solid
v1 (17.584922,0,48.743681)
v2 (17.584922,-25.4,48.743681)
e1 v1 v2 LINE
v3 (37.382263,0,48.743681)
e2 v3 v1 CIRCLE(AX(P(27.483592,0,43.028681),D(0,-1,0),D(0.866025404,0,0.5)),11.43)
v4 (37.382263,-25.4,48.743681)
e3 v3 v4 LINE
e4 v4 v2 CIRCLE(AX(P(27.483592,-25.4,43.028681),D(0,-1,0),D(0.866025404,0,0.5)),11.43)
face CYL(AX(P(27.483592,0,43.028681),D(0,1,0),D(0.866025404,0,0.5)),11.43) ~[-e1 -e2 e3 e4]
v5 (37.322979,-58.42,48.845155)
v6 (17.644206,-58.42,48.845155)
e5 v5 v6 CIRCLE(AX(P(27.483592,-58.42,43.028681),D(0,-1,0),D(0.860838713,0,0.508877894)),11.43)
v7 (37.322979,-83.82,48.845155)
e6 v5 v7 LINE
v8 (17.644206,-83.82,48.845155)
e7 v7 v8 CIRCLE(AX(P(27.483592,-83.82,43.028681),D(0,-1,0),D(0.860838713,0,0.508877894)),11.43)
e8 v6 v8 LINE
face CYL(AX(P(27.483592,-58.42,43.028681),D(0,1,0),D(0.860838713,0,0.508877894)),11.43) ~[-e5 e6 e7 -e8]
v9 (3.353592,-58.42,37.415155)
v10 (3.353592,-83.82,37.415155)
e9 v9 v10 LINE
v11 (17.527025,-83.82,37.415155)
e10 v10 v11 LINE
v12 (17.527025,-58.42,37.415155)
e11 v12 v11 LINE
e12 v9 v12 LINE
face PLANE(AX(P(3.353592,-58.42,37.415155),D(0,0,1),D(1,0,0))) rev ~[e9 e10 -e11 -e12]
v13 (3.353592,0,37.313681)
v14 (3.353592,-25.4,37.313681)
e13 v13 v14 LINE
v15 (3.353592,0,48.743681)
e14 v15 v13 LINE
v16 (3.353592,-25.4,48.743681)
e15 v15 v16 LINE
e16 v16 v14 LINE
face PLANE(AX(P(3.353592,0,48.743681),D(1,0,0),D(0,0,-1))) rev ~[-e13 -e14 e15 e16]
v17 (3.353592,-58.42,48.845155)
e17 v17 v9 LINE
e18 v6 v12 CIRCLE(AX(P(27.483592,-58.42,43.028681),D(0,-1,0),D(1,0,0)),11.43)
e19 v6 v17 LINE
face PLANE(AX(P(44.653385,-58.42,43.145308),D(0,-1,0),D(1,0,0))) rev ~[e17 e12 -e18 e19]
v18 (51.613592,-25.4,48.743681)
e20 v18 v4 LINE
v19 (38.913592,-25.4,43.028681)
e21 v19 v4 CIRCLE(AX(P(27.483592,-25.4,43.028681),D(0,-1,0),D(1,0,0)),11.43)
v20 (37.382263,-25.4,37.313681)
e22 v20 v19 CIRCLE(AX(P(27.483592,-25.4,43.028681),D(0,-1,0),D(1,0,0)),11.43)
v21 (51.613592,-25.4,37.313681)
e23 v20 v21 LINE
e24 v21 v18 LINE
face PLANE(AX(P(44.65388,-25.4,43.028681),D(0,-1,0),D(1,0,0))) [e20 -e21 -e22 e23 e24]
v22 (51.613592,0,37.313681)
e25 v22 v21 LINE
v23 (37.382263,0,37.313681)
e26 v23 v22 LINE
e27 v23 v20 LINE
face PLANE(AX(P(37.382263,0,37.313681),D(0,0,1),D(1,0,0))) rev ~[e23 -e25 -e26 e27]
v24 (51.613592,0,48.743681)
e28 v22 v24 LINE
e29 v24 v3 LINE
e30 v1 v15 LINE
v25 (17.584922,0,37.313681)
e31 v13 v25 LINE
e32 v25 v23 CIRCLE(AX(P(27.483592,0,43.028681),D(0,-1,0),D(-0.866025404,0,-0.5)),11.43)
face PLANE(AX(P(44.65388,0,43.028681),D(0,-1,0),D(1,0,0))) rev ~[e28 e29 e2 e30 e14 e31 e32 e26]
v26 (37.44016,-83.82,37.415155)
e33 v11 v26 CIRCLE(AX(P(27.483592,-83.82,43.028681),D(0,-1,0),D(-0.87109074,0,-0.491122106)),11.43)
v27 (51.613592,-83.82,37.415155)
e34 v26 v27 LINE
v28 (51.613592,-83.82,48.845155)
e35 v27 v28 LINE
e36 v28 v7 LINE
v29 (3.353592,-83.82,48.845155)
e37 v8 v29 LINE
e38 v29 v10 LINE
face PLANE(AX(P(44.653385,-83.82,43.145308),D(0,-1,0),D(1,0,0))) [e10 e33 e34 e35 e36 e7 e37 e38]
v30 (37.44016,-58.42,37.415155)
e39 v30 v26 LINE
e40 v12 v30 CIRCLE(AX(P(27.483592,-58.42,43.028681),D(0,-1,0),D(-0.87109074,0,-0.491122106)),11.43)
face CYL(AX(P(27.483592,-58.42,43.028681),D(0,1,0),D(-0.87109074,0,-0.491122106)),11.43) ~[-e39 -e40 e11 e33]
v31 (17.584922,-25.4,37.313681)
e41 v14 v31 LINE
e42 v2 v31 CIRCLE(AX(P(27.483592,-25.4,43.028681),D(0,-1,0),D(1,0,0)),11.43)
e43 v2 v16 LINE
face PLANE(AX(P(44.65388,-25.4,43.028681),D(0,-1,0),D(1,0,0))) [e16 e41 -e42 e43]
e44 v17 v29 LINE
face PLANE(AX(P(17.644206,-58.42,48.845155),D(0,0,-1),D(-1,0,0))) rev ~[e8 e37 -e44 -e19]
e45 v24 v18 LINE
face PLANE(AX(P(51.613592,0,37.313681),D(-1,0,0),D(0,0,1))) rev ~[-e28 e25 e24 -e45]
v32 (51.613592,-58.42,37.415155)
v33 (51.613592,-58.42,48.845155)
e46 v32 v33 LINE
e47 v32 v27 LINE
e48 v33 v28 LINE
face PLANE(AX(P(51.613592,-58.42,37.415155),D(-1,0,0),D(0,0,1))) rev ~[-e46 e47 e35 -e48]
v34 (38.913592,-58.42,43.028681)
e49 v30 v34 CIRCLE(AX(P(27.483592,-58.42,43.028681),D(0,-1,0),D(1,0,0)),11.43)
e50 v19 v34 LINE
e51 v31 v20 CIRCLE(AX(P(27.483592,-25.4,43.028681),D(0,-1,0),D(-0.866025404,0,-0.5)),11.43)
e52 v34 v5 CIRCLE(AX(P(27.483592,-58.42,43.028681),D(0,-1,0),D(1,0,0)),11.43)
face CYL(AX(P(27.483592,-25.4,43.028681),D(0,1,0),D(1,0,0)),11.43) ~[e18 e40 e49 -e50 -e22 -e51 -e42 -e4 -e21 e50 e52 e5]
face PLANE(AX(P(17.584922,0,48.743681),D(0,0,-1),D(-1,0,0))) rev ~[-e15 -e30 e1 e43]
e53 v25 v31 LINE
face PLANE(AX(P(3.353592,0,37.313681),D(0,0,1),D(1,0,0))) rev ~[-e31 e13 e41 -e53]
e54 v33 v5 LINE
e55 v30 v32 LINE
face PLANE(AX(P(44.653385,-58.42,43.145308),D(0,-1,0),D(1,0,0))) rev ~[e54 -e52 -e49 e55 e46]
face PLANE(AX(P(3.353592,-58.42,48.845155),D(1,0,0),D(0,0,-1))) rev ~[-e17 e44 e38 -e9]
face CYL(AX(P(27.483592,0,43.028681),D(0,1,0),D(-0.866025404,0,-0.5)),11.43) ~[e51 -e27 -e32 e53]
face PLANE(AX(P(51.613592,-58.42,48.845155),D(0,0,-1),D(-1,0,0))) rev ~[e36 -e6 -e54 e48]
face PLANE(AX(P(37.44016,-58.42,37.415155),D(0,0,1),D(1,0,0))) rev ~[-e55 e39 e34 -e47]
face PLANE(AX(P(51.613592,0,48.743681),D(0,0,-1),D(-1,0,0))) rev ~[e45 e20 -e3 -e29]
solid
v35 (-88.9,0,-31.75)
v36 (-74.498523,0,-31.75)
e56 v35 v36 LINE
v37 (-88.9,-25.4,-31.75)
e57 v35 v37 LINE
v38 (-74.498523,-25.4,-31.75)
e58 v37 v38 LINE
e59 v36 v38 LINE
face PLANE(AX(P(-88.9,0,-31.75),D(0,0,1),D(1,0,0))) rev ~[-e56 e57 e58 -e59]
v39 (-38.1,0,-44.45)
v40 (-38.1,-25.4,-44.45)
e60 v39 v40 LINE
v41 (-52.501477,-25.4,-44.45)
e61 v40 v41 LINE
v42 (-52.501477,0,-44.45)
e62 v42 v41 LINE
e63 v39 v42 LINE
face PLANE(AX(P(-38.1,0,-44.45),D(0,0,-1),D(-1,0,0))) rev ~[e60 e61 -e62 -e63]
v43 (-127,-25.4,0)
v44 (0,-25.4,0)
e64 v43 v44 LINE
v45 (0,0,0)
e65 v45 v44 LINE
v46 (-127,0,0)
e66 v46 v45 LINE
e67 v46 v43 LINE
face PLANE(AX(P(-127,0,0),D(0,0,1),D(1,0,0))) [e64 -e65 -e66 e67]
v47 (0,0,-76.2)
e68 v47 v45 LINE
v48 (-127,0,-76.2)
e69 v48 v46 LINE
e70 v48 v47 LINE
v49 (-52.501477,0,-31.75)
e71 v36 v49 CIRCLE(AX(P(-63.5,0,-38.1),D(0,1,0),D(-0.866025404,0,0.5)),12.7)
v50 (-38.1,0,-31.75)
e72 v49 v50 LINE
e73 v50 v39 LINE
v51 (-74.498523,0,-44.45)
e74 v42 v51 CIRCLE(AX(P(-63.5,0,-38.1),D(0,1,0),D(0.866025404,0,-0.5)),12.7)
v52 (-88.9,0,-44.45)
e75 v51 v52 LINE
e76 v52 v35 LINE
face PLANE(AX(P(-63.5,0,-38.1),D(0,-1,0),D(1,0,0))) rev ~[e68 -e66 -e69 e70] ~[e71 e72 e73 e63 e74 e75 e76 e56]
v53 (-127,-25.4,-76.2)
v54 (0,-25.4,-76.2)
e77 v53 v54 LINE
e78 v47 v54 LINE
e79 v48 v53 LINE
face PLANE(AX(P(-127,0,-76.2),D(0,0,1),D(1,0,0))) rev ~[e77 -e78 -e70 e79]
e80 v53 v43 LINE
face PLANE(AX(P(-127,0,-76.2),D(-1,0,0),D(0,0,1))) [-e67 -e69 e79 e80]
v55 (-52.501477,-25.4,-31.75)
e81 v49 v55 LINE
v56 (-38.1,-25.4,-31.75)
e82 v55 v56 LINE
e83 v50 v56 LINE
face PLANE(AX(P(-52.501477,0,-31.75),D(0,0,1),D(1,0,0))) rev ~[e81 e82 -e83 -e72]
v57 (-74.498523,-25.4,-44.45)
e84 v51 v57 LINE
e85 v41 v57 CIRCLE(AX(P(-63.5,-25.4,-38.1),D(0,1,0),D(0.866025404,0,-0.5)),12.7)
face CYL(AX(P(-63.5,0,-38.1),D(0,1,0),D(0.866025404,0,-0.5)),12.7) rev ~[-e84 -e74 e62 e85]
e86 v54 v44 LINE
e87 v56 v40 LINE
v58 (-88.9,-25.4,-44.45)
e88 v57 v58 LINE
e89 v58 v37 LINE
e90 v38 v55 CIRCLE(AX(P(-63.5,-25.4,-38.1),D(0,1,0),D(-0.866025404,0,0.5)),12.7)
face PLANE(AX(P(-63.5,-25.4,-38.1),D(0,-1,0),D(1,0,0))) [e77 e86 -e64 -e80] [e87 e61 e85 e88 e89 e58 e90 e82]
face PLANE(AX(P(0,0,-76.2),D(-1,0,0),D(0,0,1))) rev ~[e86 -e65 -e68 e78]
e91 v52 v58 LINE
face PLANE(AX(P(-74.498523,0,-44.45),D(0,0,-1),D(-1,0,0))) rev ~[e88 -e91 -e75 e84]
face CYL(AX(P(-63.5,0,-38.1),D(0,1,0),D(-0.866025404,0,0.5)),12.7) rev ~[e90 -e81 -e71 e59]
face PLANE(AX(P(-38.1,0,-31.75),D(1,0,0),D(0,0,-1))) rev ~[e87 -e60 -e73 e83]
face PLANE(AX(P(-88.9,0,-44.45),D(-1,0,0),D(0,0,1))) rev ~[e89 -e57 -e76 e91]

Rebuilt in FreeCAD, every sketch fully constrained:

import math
import FreeCAD as App
import Part
import Sketcher

V = App.Vector
Q = App.Units.Quantity

doc = App.newDocument("Part")
body = doc.addObject("PartDesign::Body", "Body")

# Sketch on XZ plane
sketch1 = doc.addObject("Sketcher::SketchObject", "Sketch")
body.addObject(sketch1)
sketch1.AttachmentSupport = (doc.XZ_Plane, [""])
sketch1.MapMode = "FlatFace"
sketch1.addGeometry(Part.LineSegment(V(-127, 0, 0), V(-127, -76, 0)), False)
sketch1.addGeometry(Part.LineSegment(V(-127, -76, 0), V(0, -76, 0)), False)
sketch1.addGeometry(Part.LineSegment(V(0, -76, 0), V(0, 0, 0)), False)
sketch1.addGeometry(Part.LineSegment(V(0, 0, 0), V(-127, 0, 0)), False)
sketch1.addGeometry(Part.LineSegment(V(-89, -32, 0), V(-74, -32, 0)), False)
sketch1.addGeometry(Part.ArcOfCircle(Part.Circle(V(-64, -38, 0), V(0, 0, 1), 13), math.radians(30), math.radians(150)), False)
sketch1.addGeometry(Part.LineSegment(V(-53, -32, 0), V(-38, -32, 0)), False)
sketch1.addGeometry(Part.LineSegment(V(-38, -32, 0), V(-38, -44, 0)), False)
sketch1.addGeometry(Part.LineSegment(V(-38, -44, 0), V(-53, -44, 0)), False)
sketch1.addGeometry(Part.ArcOfCircle(Part.Circle(V(-64, -38, 0), V(0, 0, 1), 13), math.radians(-150), math.radians(-30)), False)
sketch1.addGeometry(Part.LineSegment(V(-74, -44, 0), V(-89, -44, 0)), False)
sketch1.addGeometry(Part.LineSegment(V(-89, -44, 0), V(-89, -32, 0)), False)
sketch1.addConstraint(Sketcher.Constraint("Coincident", 0, 2, 1, 1))
sketch1.addConstraint(Sketcher.Constraint("Coincident", 1, 2, 2, 1))
sketch1.addConstraint(Sketcher.Constraint("Coincident", 2, 2, 3, 1))
sketch1.addConstraint(Sketcher.Constraint("Coincident", 3, 2, 0, 1))
sketch1.addConstraint(Sketcher.Constraint("Coincident", 4, 2, 5, 2))
sketch1.addConstraint(Sketcher.Constraint("Coincident", 5, 1, 6, 1))
sketch1.addConstraint(Sketcher.Constraint("Coincident", 6, 2, 7, 1))
sketch1.addConstraint(Sketcher.Constraint("Coincident", 7, 2, 8, 1))
sketch1.addConstraint(Sketcher.Constraint("Coincident", 8, 2, 9, 2))
sketch1.addConstraint(Sketcher.Constraint("Coincident", 9, 1, 10, 1))
sketch1.addConstraint(Sketcher.Constraint("Coincident", 10, 2, 11, 1))
sketch1.addConstraint(Sketcher.Constraint("Coincident", 11, 2, 4, 1))
sketch1.addConstraint(Sketcher.Constraint("Vertical", 0))
sketch1.addConstraint(Sketcher.Constraint("Horizontal", 1))
sketch1.addConstraint(Sketcher.Constraint("Vertical", 2))
sketch1.addConstraint(Sketcher.Constraint("Horizontal", 3))
sketch1.addConstraint(Sketcher.Constraint("Horizontal", 4))
sketch1.addConstraint(Sketcher.Constraint("Horizontal", 6))
sketch1.addConstraint(Sketcher.Constraint("Vertical", 7))
sketch1.addConstraint(Sketcher.Constraint("Horizontal", 8))
sketch1.addConstraint(Sketcher.Constraint("Horizontal", 10))
sketch1.addConstraint(Sketcher.Constraint("Vertical", 11))
sketch1.addConstraint(Sketcher.Constraint("Coincident", 2, 2, -1, 1))
sketch1.addConstraint(Sketcher.Constraint("Coincident", 9, 3, 5, 3))
sketch1.addConstraint(Sketcher.Constraint("Equal", 5, 9))
sketch1.addConstraint(Sketcher.Constraint("Horizontal", 4, 2, 5, 1))
sketch1.addConstraint(Sketcher.Constraint("Horizontal", 8, 2, 9, 1))
sketch1.addConstraint(Sketcher.Constraint("Vertical", 5, 1, 8, 2))
sketch1.addConstraint(Sketcher.Constraint("Equal", 4, 6))
sketch1.addConstraint(Sketcher.Constraint("Radius", 5, Q("0.5 in")))
sketch1.addConstraint(Sketcher.Constraint("DistanceX", 1, 1, 1, 2, Q("5 in")))
sketch1.addConstraint(Sketcher.Constraint("DistanceY", 0, 2, 0, 1, Q("3 in")))
sketch1.addConstraint(Sketcher.Constraint("DistanceY", 7, 2, 7, 1, Q("0.5 in")))
sketch1.addConstraint(Sketcher.Constraint("DistanceX", 5, 3, 6, 2, Q("1 in")))
sketch1.addConstraint(Sketcher.Constraint("DistanceX", 5, 3, -1, 1, Q("2.5 in")))
sketch1.addConstraint(Sketcher.Constraint("DistanceY", 5, 3, -1, 1, Q("1.5 in")))
pad1 = doc.addObject("PartDesign::Pad", "Pad")
body.addObject(pad1)
pad1.Profile = sketch1
pad1.Length = Q("1 in")

# Sketch on XZ plane
sketch2 = doc.addObject("Sketcher::SketchObject", "Sketch001")
body.addObject(sketch2)
sketch2.AttachmentSupport = (doc.XZ_Plane, [""])
sketch2.MapMode = "FlatFace"
sketch2.addGeometry(Part.LineSegment(V(-127, 0, 0), V(-127, -76, 0)), False)
sketch2.addGeometry(Part.LineSegment(V(-127, -76, 0), V(0, -76, 0)), False)
sketch2.addGeometry(Part.LineSegment(V(0, -76, 0), V(0, 0, 0)), False)
sketch2.addGeometry(Part.LineSegment(V(0, 0, 0), V(-127, 0, 0)), False)
sketch2.addGeometry(Part.LineSegment(V(-89, -32, 0), V(-74, -32, 0)), False)
sketch2.addGeometry(Part.ArcOfCircle(Part.Circle(V(-64, -38, 0), V(0, 0, 1), 13), math.radians(30), math.radians(150)), False)
sketch2.addGeometry(Part.LineSegment(V(-53, -32, 0), V(-38, -32, 0)), False)
sketch2.addGeometry(Part.LineSegment(V(-38, -32, 0), V(-38, -44, 0)), False)
sketch2.addGeometry(Part.LineSegment(V(-38, -44, 0), V(-53, -44, 0)), False)
sketch2.addGeometry(Part.ArcOfCircle(Part.Circle(V(-64, -38, 0), V(0, 0, 1), 13), math.radians(-150), math.radians(-30)), False)
sketch2.addGeometry(Part.LineSegment(V(-74, -44, 0), V(-89, -44, 0)), False)
sketch2.addGeometry(Part.LineSegment(V(-89, -44, 0), V(-89, -32, 0)), False)
sketch2.addConstraint(Sketcher.Constraint("Coincident", 0, 2, 1, 1))
sketch2.addConstraint(Sketcher.Constraint("Coincident", 1, 2, 2, 1))
sketch2.addConstraint(Sketcher.Constraint("Coincident", 2, 2, 3, 1))
sketch2.addConstraint(Sketcher.Constraint("Coincident", 3, 2, 0, 1))
sketch2.addConstraint(Sketcher.Constraint("Coincident", 4, 2, 5, 2))
sketch2.addConstraint(Sketcher.Constraint("Coincident", 5, 1, 6, 1))
sketch2.addConstraint(Sketcher.Constraint("Coincident", 6, 2, 7, 1))
sketch2.addConstraint(Sketcher.Constraint("Coincident", 7, 2, 8, 1))
sketch2.addConstraint(Sketcher.Constraint("Coincident", 8, 2, 9, 2))
sketch2.addConstraint(Sketcher.Constraint("Coincident", 9, 1, 10, 1))
sketch2.addConstraint(Sketcher.Constraint("Coincident", 10, 2, 11, 1))
sketch2.addConstraint(Sketcher.Constraint("Coincident", 11, 2, 4, 1))
sketch2.addConstraint(Sketcher.Constraint("Vertical", 0))
sketch2.addConstraint(Sketcher.Constraint("Horizontal", 1))
sketch2.addConstraint(Sketcher.Constraint("Vertical", 2))
sketch2.addConstraint(Sketcher.Constraint("Horizontal", 3))
sketch2.addConstraint(Sketcher.Constraint("Horizontal", 4))
sketch2.addConstraint(Sketcher.Constraint("Horizontal", 6))
sketch2.addConstraint(Sketcher.Constraint("Vertical", 7))
sketch2.addConstraint(Sketcher.Constraint("Horizontal", 8))
sketch2.addConstraint(Sketcher.Constraint("Horizontal", 10))
sketch2.addConstraint(Sketcher.Constraint("Vertical", 11))
sketch2.addConstraint(Sketcher.Constraint("Coincident", 2, 2, -1, 1))
sketch2.addConstraint(Sketcher.Constraint("Coincident", 9, 3, 5, 3))
sketch2.addConstraint(Sketcher.Constraint("Equal", 5, 9))
sketch2.addConstraint(Sketcher.Constraint("Horizontal", 4, 2, 5, 1))
sketch2.addConstraint(Sketcher.Constraint("Horizontal", 8, 2, 9, 1))
sketch2.addConstraint(Sketcher.Constraint("Vertical", 5, 1, 8, 2))
sketch2.addConstraint(Sketcher.Constraint("Equal", 4, 6))
sketch2.addConstraint(Sketcher.Constraint("Radius", 5, Q("0.5 in")))
sketch2.addConstraint(Sketcher.Constraint("DistanceX", 1, 1, 1, 2, Q("5 in")))
sketch2.addConstraint(Sketcher.Constraint("DistanceY", 0, 2, 0, 1, Q("3 in")))
sketch2.addConstraint(Sketcher.Constraint("DistanceY", 7, 2, 7, 1, Q("0.5 in")))
sketch2.addConstraint(Sketcher.Constraint("DistanceX", 5, 3, 6, 2, Q("1 in")))
sketch2.addConstraint(Sketcher.Constraint("DistanceX", 5, 3, -1, 1, Q("2.5 in")))
sketch2.addConstraint(Sketcher.Constraint("DistanceY", 5, 3, -1, 1, Q("1.5 in")))
pad2 = doc.addObject("PartDesign::Pad", "Pad001")
body.addObject(pad2)
pad2.Profile = sketch2
pad2.Length = Q("1 in")
body2 = doc.addObject("PartDesign::Body", "Body001")

# Sketch on XZ plane
sketch3 = doc.addObject("Sketcher::SketchObject", "Sketch002")
body2.addObject(sketch3)
sketch3.AttachmentSupport = (doc.getObject("XZ_Plane001"), [""])
sketch3.MapMode = "FlatFace"
sketch3.addGeometry(Part.LineSegment(V(37, 37, 0), V(52, 37, 0)), False)
sketch3.addGeometry(Part.LineSegment(V(52, 37, 0), V(52, 49, 0)), False)
sketch3.addGeometry(Part.LineSegment(V(52, 49, 0), V(37, 49, 0)), False)
sketch3.addGeometry(Part.ArcOfCircle(Part.Circle(V(27, 43, 0), V(0, 0, 1), 11), math.radians(30), math.radians(150)), False)
sketch3.addGeometry(Part.LineSegment(V(18, 49, 0), V(3, 49, 0)), False)
sketch3.addGeometry(Part.LineSegment(V(3, 49, 0), V(3, 37, 0)), False)
sketch3.addGeometry(Part.LineSegment(V(3, 37, 0), V(18, 37, 0)), False)
sketch3.addGeometry(Part.ArcOfCircle(Part.Circle(V(27, 43, 0), V(0, 0, 1), 11), math.radians(-150), math.radians(-30)), False)
sketch3.addConstraint(Sketcher.Constraint("Coincident", 0, 2, 1, 1))
sketch3.addConstraint(Sketcher.Constraint("Coincident", 1, 2, 2, 1))
sketch3.addConstraint(Sketcher.Constraint("Coincident", 2, 2, 3, 1))
sketch3.addConstraint(Sketcher.Constraint("Coincident", 3, 2, 4, 1))
sketch3.addConstraint(Sketcher.Constraint("Coincident", 4, 2, 5, 1))
sketch3.addConstraint(Sketcher.Constraint("Coincident", 5, 2, 6, 1))
sketch3.addConstraint(Sketcher.Constraint("Coincident", 6, 2, 7, 1))
sketch3.addConstraint(Sketcher.Constraint("Coincident", 7, 2, 0, 1))
sketch3.addConstraint(Sketcher.Constraint("Horizontal", 0))
sketch3.addConstraint(Sketcher.Constraint("Vertical", 1))
sketch3.addConstraint(Sketcher.Constraint("Horizontal", 2))
sketch3.addConstraint(Sketcher.Constraint("Horizontal", 4))
sketch3.addConstraint(Sketcher.Constraint("Vertical", 5))
sketch3.addConstraint(Sketcher.Constraint("Horizontal", 6))
sketch3.addConstraint(Sketcher.Constraint("Coincident", 7, 3, 3, 3))
sketch3.addConstraint(Sketcher.Constraint("Equal", 3, 7))
sketch3.addConstraint(Sketcher.Constraint("Horizontal", 2, 2, 3, 2))
sketch3.addConstraint(Sketcher.Constraint("Horizontal", 0, 2, 5, 2))
sketch3.addConstraint(Sketcher.Constraint("Vertical", 3, 2, 6, 2))
sketch3.addConstraint(Sketcher.Constraint("Equal", 2, 4))
sketch3.addConstraint(Sketcher.Constraint("Radius", 3, Q("0.45 in")))
sketch3.addConstraint(Sketcher.Constraint("DistanceY", 1, 1, 1, 2, Q("0.45 in")))
sketch3.addConstraint(Sketcher.Constraint("DistanceX", 4, 2, 1, 2, Q("1.9 in")))
sketch3.addConstraint(Sketcher.Constraint("DistanceY", -1, 1, 3, 3, Q("43.028681 mm")))
sketch3.addConstraint(Sketcher.Constraint("DistanceX", -1, 1, 3, 3, Q("27.483592 mm")))
pad3 = doc.addObject("PartDesign::Pad", "Pad002")
body2.addObject(pad3)
pad3.Profile = sketch3
pad3.Length = Q("1 in")

# Sketch on XZ plane
sketch4 = doc.addObject("Sketcher::SketchObject", "Sketch003")
body2.addObject(sketch4)
sketch4.AttachmentSupport = (doc.getObject("XZ_Plane001"), [""])
sketch4.MapMode = "FlatFace"
sketch4.AttachmentOffset = App.Placement(V(0, 0, 1 * 25.4), App.Rotation())
sketch4.addGeometry(Part.Circle(V(27, 43, 0), V(0, 0, 1), 11), False)
sketch4.addConstraint(Sketcher.Constraint("Diameter", 0, Q("0.9 in")))
sketch4.addConstraint(Sketcher.Constraint("DistanceY", -1, 1, 0, 3, Q("43.028681 mm")))
sketch4.addConstraint(Sketcher.Constraint("DistanceX", -1, 1, 0, 3, Q("27.483592 mm")))
pad4 = doc.addObject("PartDesign::Pad", "Pad003")
body2.addObject(pad4)
pad4.Profile = sketch4
pad4.Length = Q("1.3 in")

# Sketch on XZ plane
sketch5 = doc.addObject("Sketcher::SketchObject", "Sketch004")
body2.addObject(sketch5)
sketch5.AttachmentSupport = (doc.getObject("XZ_Plane001"), [""])
sketch5.MapMode = "FlatFace"
sketch5.AttachmentOffset = App.Placement(V(0, 0, 2.3 * 25.4), App.Rotation())
sketch5.addGeometry(Part.LineSegment(V(52, 49, 0), V(37, 49, 0)), False)
sketch5.addGeometry(Part.ArcOfCircle(Part.Circle(V(27, 43, 0), V(0, 0, 1), 11), math.radians(31), math.radians(149)), False)
sketch5.addGeometry(Part.LineSegment(V(18, 49, 0), V(3, 49, 0)), False)
sketch5.addGeometry(Part.LineSegment(V(3, 49, 0), V(3, 37, 0)), False)
sketch5.addGeometry(Part.LineSegment(V(3, 37, 0), V(18, 37, 0)), False)
sketch5.addGeometry(Part.ArcOfCircle(Part.Circle(V(27, 43, 0), V(0, 0, 1), 11), math.radians(-151), math.radians(-29)), False)
sketch5.addGeometry(Part.LineSegment(V(37, 37, 0), V(52, 37, 0)), False)
sketch5.addGeometry(Part.LineSegment(V(52, 37, 0), V(52, 49, 0)), False)
sketch5.addConstraint(Sketcher.Constraint("Coincident", 0, 2, 1, 1))
sketch5.addConstraint(Sketcher.Constraint("Coincident", 1, 2, 2, 1))
sketch5.addConstraint(Sketcher.Constraint("Coincident", 2, 2, 3, 1))
sketch5.addConstraint(Sketcher.Constraint("Coincident", 3, 2, 4, 1))
sketch5.addConstraint(Sketcher.Constraint("Coincident", 4, 2, 5, 1))
sketch5.addConstraint(Sketcher.Constraint("Coincident", 5, 2, 6, 1))
sketch5.addConstraint(Sketcher.Constraint("Coincident", 6, 2, 7, 1))
sketch5.addConstraint(Sketcher.Constraint("Coincident", 7, 2, 0, 1))
sketch5.addConstraint(Sketcher.Constraint("Horizontal", 0))
sketch5.addConstraint(Sketcher.Constraint("Horizontal", 2))
sketch5.addConstraint(Sketcher.Constraint("Vertical", 3))
sketch5.addConstraint(Sketcher.Constraint("Horizontal", 4))
sketch5.addConstraint(Sketcher.Constraint("Horizontal", 6))
sketch5.addConstraint(Sketcher.Constraint("Vertical", 7))
sketch5.addConstraint(Sketcher.Constraint("Coincident", 5, 3, 1, 3))
sketch5.addConstraint(Sketcher.Constraint("Equal", 1, 5))
sketch5.addConstraint(Sketcher.Constraint("Horizontal", 0, 2, 1, 2))
sketch5.addConstraint(Sketcher.Constraint("Horizontal", 4, 2, 5, 2))
sketch5.addConstraint(Sketcher.Constraint("Equal", 0, 2))
sketch5.addConstraint(Sketcher.Constraint("Radius", 1, Q("0.45 in")))
sketch5.addConstraint(Sketcher.Constraint("DistanceY", 3, 2, 3, 1, Q("0.45 in")))
sketch5.addConstraint(Sketcher.Constraint("DistanceX", 2, 2, 1, 3, Q("0.95 in")))
sketch5.addConstraint(Sketcher.Constraint("DistanceX", 0, 2, 0, 1, Q("14.290614 mm")))
sketch5.addConstraint(Sketcher.Constraint("DistanceY", -1, 1, 1, 3, Q("43.028681 mm")))
sketch5.addConstraint(Sketcher.Constraint("DistanceX", -1, 1, 0, 2, Q("37.322979 mm")))
pad5 = doc.addObject("PartDesign::Pad", "Pad004")
body2.addObject(pad5)
pad5.Profile = sketch5
pad5.Length = Q("1 in")

doc.recompute()
